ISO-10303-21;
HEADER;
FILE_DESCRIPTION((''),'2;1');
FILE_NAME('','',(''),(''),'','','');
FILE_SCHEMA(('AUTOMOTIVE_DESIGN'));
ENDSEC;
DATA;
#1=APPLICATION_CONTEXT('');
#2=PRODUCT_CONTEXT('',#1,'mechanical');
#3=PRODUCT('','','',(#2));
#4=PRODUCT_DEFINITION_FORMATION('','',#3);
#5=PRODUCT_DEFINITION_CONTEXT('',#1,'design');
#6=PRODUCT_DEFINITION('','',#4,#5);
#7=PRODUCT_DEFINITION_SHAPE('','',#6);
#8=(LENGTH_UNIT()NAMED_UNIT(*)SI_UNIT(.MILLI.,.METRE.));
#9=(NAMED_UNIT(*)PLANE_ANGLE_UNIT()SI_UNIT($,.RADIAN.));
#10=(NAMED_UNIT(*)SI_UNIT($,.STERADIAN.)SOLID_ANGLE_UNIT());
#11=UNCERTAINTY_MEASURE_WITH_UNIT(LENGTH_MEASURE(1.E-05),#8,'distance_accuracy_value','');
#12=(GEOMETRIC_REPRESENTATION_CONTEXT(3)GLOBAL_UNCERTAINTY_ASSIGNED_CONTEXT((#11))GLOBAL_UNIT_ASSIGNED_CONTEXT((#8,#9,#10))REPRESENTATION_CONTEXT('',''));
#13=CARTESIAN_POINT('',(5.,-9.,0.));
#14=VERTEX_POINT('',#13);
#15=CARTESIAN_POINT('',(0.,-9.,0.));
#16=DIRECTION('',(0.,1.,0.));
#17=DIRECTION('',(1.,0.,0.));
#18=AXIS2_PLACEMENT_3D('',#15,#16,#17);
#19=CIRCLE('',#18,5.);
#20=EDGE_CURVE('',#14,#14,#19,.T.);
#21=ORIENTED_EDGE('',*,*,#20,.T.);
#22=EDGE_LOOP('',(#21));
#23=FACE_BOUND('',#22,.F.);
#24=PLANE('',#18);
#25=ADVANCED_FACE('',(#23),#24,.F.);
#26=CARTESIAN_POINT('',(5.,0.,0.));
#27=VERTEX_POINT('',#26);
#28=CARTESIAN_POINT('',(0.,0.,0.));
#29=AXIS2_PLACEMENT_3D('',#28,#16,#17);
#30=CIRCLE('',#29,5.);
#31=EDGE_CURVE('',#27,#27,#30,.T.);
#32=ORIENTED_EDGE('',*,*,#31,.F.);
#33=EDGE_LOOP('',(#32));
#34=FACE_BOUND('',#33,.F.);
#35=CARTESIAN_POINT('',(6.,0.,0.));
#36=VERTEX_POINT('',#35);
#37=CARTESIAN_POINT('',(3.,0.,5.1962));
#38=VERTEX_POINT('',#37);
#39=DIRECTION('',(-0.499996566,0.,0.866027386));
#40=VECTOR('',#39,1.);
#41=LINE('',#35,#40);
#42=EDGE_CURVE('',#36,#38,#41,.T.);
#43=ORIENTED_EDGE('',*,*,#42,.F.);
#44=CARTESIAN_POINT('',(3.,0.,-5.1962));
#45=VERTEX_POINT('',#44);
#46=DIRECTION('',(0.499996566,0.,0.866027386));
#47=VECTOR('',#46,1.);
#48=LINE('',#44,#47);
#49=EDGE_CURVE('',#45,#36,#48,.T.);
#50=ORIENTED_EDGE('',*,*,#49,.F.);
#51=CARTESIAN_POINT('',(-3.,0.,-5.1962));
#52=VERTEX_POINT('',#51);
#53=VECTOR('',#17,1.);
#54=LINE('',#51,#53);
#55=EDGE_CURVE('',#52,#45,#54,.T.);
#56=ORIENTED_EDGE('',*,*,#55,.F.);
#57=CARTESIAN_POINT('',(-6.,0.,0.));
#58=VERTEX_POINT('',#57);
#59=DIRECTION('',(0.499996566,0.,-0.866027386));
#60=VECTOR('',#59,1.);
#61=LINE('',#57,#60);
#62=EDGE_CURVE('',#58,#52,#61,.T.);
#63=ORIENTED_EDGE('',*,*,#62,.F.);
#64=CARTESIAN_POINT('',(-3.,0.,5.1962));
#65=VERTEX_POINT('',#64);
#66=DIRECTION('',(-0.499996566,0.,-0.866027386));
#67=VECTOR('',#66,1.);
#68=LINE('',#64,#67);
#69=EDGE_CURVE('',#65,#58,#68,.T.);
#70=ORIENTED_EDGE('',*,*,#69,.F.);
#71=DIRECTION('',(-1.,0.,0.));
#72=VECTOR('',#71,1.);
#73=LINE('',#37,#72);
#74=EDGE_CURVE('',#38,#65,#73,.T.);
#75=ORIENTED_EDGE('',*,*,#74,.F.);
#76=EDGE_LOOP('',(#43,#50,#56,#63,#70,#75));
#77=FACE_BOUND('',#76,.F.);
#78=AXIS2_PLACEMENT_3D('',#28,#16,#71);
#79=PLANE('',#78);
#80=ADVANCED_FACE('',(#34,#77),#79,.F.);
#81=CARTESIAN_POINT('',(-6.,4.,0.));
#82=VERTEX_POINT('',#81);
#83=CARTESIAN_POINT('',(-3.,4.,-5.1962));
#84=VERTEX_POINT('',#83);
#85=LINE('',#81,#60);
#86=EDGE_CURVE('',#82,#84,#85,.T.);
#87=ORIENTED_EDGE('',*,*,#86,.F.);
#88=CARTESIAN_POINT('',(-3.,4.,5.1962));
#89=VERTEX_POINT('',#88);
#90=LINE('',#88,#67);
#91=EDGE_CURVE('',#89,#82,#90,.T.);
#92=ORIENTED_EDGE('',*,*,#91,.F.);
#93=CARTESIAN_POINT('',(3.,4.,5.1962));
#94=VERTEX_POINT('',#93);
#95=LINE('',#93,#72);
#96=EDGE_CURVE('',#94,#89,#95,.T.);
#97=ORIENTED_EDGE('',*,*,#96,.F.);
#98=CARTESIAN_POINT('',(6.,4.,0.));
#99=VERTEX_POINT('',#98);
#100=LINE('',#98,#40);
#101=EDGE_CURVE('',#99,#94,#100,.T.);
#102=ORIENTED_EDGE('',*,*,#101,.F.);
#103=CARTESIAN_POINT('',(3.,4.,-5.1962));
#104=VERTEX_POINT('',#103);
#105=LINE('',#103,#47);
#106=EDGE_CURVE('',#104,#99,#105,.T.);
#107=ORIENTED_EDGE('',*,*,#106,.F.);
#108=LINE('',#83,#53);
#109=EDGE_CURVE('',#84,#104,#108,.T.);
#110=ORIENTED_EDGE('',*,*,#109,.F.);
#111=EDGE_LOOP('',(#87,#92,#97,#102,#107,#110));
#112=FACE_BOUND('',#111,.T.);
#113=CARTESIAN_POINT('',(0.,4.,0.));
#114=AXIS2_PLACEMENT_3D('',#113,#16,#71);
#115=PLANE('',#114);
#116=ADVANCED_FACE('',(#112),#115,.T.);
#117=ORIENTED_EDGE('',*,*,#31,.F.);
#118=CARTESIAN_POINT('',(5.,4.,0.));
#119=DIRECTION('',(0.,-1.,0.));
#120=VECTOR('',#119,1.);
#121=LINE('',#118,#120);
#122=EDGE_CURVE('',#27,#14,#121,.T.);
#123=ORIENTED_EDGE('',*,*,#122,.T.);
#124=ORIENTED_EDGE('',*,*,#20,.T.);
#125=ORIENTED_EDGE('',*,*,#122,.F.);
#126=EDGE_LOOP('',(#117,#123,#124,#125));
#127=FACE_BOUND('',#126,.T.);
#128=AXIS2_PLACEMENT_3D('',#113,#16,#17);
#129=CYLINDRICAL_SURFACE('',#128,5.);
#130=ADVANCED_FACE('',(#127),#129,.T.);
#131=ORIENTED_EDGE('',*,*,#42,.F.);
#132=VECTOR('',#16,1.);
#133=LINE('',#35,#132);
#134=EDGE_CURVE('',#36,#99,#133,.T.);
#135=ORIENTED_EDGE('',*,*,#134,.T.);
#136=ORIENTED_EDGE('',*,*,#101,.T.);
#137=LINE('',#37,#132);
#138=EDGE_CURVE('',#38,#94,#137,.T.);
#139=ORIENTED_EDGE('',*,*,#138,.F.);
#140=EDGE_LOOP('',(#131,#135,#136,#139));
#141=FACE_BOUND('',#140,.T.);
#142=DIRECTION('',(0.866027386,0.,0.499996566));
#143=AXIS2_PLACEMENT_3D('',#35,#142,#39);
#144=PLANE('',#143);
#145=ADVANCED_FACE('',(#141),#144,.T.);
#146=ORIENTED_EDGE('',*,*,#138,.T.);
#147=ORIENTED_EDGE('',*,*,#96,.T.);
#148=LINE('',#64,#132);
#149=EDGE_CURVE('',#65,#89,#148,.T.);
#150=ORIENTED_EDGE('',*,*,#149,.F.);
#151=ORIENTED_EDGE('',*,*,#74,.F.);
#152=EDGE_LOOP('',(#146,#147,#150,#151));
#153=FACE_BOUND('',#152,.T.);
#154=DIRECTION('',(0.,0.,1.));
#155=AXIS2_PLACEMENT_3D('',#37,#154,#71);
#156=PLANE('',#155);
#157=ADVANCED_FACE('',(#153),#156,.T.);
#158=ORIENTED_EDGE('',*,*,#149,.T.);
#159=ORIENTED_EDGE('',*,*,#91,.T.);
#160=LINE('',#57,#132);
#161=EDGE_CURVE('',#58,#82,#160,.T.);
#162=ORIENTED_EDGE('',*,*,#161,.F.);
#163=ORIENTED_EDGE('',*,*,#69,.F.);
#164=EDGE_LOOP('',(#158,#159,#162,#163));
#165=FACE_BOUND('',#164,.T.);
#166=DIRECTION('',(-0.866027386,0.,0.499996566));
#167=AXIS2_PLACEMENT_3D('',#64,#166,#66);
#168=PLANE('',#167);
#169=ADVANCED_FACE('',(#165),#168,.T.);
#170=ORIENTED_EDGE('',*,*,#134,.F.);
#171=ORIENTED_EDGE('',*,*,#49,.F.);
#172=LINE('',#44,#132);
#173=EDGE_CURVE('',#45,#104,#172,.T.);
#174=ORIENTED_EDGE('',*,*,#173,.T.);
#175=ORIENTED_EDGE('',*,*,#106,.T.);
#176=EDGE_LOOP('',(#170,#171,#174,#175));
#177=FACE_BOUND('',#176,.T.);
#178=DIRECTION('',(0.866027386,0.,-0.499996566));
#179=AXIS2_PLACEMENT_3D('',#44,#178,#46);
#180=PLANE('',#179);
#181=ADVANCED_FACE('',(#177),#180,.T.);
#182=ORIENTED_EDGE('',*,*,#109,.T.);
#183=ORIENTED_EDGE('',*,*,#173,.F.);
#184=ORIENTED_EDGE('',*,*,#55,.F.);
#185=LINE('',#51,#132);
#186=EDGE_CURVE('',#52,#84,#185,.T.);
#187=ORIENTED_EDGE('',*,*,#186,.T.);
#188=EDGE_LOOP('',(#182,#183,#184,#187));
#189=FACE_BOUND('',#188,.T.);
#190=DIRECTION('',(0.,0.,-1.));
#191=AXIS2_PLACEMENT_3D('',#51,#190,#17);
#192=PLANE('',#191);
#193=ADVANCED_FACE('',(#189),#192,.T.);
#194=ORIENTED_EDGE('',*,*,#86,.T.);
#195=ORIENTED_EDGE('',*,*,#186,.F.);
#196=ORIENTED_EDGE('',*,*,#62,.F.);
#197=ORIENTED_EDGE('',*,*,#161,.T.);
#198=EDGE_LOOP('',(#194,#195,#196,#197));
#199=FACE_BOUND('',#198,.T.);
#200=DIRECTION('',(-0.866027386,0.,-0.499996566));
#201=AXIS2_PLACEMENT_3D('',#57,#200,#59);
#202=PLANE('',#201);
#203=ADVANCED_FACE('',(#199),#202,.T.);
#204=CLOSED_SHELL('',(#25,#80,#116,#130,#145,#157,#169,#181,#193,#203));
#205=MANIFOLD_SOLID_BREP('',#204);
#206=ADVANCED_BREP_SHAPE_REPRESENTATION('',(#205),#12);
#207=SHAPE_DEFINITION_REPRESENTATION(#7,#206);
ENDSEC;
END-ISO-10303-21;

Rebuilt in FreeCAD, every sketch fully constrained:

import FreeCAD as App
import Part
import Sketcher
from FreeCAD import Vector
Q = App.Units.Quantity

doc = App.newDocument("Part")
body = doc.addObject("PartDesign::Body", "Body")

sketch1 = body.newObject("Sketcher::SketchObject", "Sketch")
sketch1.AttachmentSupport = (doc.getObject("XZ_Plane"), [""])
sketch1.MapMode = "FlatFace"
sketch1.addGeometry(Part.LineSegment(Vector(-3, -5.1962, 0), Vector(-6, 0, 0)), False)
sketch1.addGeometry(Part.LineSegment(Vector(-6, 0, 0), Vector(-3, 5.1962, 0)), False)
sketch1.addGeometry(Part.LineSegment(Vector(-3, 5.1962, 0), Vector(3, 5.1962, 0)), False)
sketch1.addGeometry(Part.LineSegment(Vector(3, 5.1962, 0), Vector(6, 0, 0)), False)
sketch1.addGeometry(Part.LineSegment(Vector(6, 0, 0), Vector(3, -5.1962, 0)), False)
sketch1.addGeometry(Part.LineSegment(Vector(3, -5.1962, 0), Vector(-3, -5.1962, 0)), False)
sketch1.addGeometry(Part.Circle(Vector(0, 0, 0), Vector(0, 0, 1), 5), False)
sketch1.addConstraint(Sketcher.Constraint("Coincident", 0, 2, 1, 1))
sketch1.addConstraint(Sketcher.Constraint("Coincident", 1, 2, 2, 1))
sketch1.addConstraint(Sketcher.Constraint("Coincident", 2, 2, 3, 1))
sketch1.addConstraint(Sketcher.Constraint("Coincident", 3, 2, 4, 1))
sketch1.addConstraint(Sketcher.Constraint("Coincident", 4, 2, 5, 1))
sketch1.addConstraint(Sketcher.Constraint("Coincident", 5, 2, 0, 1))
sketch1.addConstraint(Sketcher.Constraint("Horizontal", 2))
sketch1.addConstraint(Sketcher.Constraint("Horizontal", 5))
sketch1.addConstraint(Sketcher.Constraint("Coincident", 6, 3, -1, 1))
sketch1.addConstraint(Sketcher.Constraint("Symmetric", 0, 2, 3, 2, -1, 1))
sketch1.addConstraint(Sketcher.Constraint("Symmetric", 1, 2, 4, 2, -1, 1))
sketch1.addConstraint(Sketcher.Constraint("PointOnObject", 0, 2, -1))
sketch1.addConstraint(Sketcher.Constraint("Parallel", 0, 3))
sketch1.addConstraint(Sketcher.Constraint("Vertical", 2, 2, 4, 2))
sketch1.addConstraint(Sketcher.Constraint("Diameter", 6, 10.0))
sketch1.addConstraint(Sketcher.Constraint("DistanceX", 0, 2, 3, 2, 12.0))
sketch1.addConstraint(Sketcher.Constraint("DistanceX", 2, 1, 2, 2, 6.0))
sketch1.addConstraint(Sketcher.Constraint("Angle", 0, Q("119.9998 deg")))
pad1 = body.newObject("PartDesign::Pad", "Pad")
pad1.Profile = sketch1
pad1.Length = 4
pad1.Reversed = True

sketch2 = body.newObject("Sketcher::SketchObject", "Sketch001")
sketch2.AttachmentSupport = (doc.getObject("XZ_Plane"), [""])
sketch2.MapMode = "FlatFace"
sketch2.AttachmentOffset = App.Placement(Vector(0, 0, -4), App.Rotation())
sketch2.addGeometry(Part.Circle(Vector(0, 0, 0), Vector(0, 0, 1), 5), False)
sketch2.addConstraint(Sketcher.Constraint("Coincident", 0, 3, -1, 1))
sketch2.addConstraint(Sketcher.Constraint("Diameter", 0, 10.0))
pad2 = body.newObject("PartDesign::Pad", "Pad001")
pad2.Profile = sketch2
pad2.Length = 13

doc.recompute()
